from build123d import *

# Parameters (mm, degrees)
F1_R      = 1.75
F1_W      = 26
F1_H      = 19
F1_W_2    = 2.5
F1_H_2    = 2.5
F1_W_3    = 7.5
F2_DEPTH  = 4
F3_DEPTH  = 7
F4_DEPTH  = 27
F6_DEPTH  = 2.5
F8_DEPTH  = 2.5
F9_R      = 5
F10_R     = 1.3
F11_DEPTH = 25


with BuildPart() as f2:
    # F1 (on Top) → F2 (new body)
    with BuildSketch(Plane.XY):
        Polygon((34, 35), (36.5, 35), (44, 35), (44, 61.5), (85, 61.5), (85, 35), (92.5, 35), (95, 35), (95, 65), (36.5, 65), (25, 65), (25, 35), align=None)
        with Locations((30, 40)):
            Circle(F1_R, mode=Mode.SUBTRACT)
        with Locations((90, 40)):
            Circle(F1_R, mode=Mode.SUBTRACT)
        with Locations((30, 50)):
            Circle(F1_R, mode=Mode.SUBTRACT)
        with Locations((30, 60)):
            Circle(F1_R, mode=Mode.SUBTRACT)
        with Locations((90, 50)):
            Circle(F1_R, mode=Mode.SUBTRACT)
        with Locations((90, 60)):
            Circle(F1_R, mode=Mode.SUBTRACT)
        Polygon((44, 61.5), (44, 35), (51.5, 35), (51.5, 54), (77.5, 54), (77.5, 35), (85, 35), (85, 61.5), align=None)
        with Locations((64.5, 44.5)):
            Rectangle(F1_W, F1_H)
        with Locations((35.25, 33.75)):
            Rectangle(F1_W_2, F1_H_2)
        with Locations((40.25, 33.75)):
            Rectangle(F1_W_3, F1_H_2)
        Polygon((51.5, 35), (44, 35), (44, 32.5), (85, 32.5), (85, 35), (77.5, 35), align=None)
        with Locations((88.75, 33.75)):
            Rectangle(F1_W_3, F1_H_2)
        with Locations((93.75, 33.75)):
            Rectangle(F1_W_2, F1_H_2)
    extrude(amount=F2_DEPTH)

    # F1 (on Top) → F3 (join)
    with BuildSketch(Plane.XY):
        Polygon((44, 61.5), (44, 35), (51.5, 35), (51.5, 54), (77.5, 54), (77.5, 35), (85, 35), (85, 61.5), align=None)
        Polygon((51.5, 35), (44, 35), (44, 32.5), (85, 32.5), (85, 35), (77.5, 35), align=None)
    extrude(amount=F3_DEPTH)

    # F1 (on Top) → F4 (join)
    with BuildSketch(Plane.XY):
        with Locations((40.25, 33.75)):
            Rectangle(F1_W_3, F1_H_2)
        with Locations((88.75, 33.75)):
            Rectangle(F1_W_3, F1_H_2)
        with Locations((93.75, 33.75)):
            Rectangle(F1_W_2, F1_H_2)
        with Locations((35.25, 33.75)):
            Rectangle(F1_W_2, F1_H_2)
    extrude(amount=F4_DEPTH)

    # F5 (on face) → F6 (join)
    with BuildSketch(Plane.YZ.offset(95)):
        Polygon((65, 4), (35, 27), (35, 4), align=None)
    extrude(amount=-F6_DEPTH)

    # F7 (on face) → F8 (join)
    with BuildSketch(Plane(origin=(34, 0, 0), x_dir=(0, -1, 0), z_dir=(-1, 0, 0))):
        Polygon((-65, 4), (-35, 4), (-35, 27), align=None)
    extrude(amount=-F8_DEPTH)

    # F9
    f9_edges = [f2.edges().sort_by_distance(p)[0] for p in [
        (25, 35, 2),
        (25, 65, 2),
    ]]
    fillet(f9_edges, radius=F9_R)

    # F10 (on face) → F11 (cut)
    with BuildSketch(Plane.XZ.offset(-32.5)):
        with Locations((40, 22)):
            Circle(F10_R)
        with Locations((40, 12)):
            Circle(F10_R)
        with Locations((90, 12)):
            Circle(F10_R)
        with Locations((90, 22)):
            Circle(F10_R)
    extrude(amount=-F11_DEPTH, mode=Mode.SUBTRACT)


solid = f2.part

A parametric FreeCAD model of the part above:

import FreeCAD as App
import Part
import Sketcher

V = App.Vector
Q = App.Units.Quantity


def edges_at(feature, points):
    """Names of the edges that pass closest to the given points."""
    edges = feature.Shape.Edges
    near = lambda p: min(range(len(edges)), key=lambda i: edges[i].distToShape(Part.Vertex(*p))[0])
    return sorted({f"Edge{near(p) + 1}" for p in points})

doc = App.newDocument("Part")
params = doc.addObject("Spreadsheet::Sheet", "Params")
for row, (alias, value) in enumerate([
    ("sketch1_diameter", "3.5 mm"),
    ("sketch1_width", "9 mm"),
    ("sketch1_width2", "61 mm"),
    ("sketch1_height", "30 mm"),
    ("sketch1_height2", "2.5 mm"),
    ("pad1_length", "4 mm"),
    ("sketch2_width", "41 mm"),
    ("sketch2_width2", "26 mm"),
    ("sketch2_height", "29 mm"),
    ("sketch2_height2", "19 mm"),
    ("pad2_length", "7 mm"),
    ("sketch3_width", "10 mm"),
    ("sketch3_height", "2.5 mm"),
    ("pad3_length", "27 mm"),
    ("sketch4_width", "30 mm"),
    ("sketch4_height", "23 mm"),
    ("pad4_length", "2.5 mm"),
    ("sketch5_width", "30 mm"),
    ("sketch5_height", "23 mm"),
    ("pad5_length", "2.5 mm"),
    ("fillet_radius", "5 mm"),
    ("sketch6_diameter", "2.6 mm"),
    ("pocket1_length", "25 mm"),
], start=1):
    params.set(f"A{row}", alias)
    params.set(f"B{row}", "=" + value)
    params.setAlias(f"B{row}", alias)

body = doc.addObject("PartDesign::Body", "Body")

sketch1 = doc.addObject("Sketcher::SketchObject", "Sketch")
body.addObject(sketch1)
sketch1.AttachmentSupport = (doc.XY_Plane, [""])
sketch1.MapMode = "FlatFace"
sketch1.addGeometry([
    Part.LineSegment(V(25, 35, 0), V(34, 35, 0)),
    Part.LineSegment(V(34, 35, 0), V(34, 32.5, 0)),
    Part.LineSegment(V(34, 32.5, 0), V(95, 32.5, 0)),
    Part.LineSegment(V(95, 32.5, 0), V(95, 65, 0)),
    Part.LineSegment(V(95, 65, 0), V(25, 65, 0)),
    Part.LineSegment(V(25, 65, 0), V(25, 35, 0)),
    Part.Circle(V(30, 40, 0), V(0, 0, 1), 1.8),
    Part.Circle(V(90, 40, 0), V(0, 0, 1), 1.8),
    Part.Circle(V(30, 50, 0), V(0, 0, 1), 1.8),
    Part.Circle(V(30, 60, 0), V(0, 0, 1), 1.8),
    Part.Circle(V(90, 50, 0), V(0, 0, 1), 1.8),
    Part.Circle(V(90, 60, 0), V(0, 0, 1), 1.8),
], False)
sketch1.addConstraint([
    Sketcher.Constraint("Coincident", 0, 2, 1, 1),
    Sketcher.Constraint("Coincident", 1, 2, 2, 1),
    Sketcher.Constraint("Coincident", 2, 2, 3, 1),
    Sketcher.Constraint("Coincident", 3, 2, 4, 1),
    Sketcher.Constraint("Coincident", 4, 2, 5, 1),
    Sketcher.Constraint("Coincident", 5, 2, 0, 1),
    Sketcher.Constraint("Horizontal", 0),
    Sketcher.Constraint("Vertical", 1),
    Sketcher.Constraint("Horizontal", 2),
    Sketcher.Constraint("Vertical", 3),
    Sketcher.Constraint("Horizontal", 4),
    Sketcher.Constraint("Vertical", 5),
    Sketcher.Constraint("Equal", 6, 7),
    Sketcher.Constraint("Equal", 7, 8),
    Sketcher.Constraint("Equal", 8, 9),
    Sketcher.Constraint("Equal", 9, 10),
    Sketcher.Constraint("Equal", 10, 11),
    Sketcher.Constraint("Horizontal", 6, 3, 7, 3),
    Sketcher.Constraint("Horizontal", 8, 3, 10, 3),
    Sketcher.Constraint("Horizontal", 9, 3, 11, 3),
    Sketcher.Constraint("Vertical", 6, 3, 8, 3),
    Sketcher.Constraint("Vertical", 8, 3, 9, 3),
    Sketcher.Constraint("Vertical", 7, 3, 10, 3),
    Sketcher.Constraint("Vertical", 10, 3, 11, 3),
    Sketcher.Constraint("Diameter", 6, Q("3.5 mm")),
    Sketcher.Constraint("DistanceX", 0, 1, 0, 2, Q("9 mm")),
    Sketcher.Constraint("DistanceX", 2, 1, 2, 2, Q("61 mm")),
    Sketcher.Constraint("DistanceY", 5, 2, 5, 1, Q("30 mm")),
    Sketcher.Constraint("DistanceY", 1, 2, 1, 1, Q("2.5 mm")),
    Sketcher.Constraint("DistanceX", -1, 1, 6, 3, Q("30 mm")),
    Sketcher.Constraint("DistanceY", -1, 1, 6, 3, Q("40 mm")),
    Sketcher.Constraint("DistanceX", -1, 1, 7, 3, Q("90 mm")),
    Sketcher.Constraint("DistanceY", -1, 1, 8, 3, Q("50 mm")),
    Sketcher.Constraint("DistanceY", -1, 1, 9, 3, Q("60 mm")),
    Sketcher.Constraint("DistanceX", -1, 1, 0, 2, Q("34 mm")),
    Sketcher.Constraint("DistanceY", -1, 1, 0, 2, Q("35 mm")),
])
sketch1.setExpression("Constraints[24]", "Params.sketch1_diameter")
sketch1.setExpression("Constraints[25]", "Params.sketch1_width")
sketch1.setExpression("Constraints[26]", "Params.sketch1_width2")
sketch1.setExpression("Constraints[27]", "Params.sketch1_height")
sketch1.setExpression("Constraints[28]", "Params.sketch1_height2")
pad1 = doc.addObject("PartDesign::Pad", "Pad")
body.addObject(pad1)
pad1.Profile = sketch1
pad1.setExpression("Length", "Params.pad1_length")

sketch2 = doc.addObject("Sketcher::SketchObject", "Sketch001")
body.addObject(sketch2)
sketch2.AttachmentSupport = (doc.XY_Plane, [""])
sketch2.MapMode = "FlatFace"
sketch2.addGeometry([
    Part.LineSegment(V(44, 62, 0), V(44, 32, 0)),
    Part.LineSegment(V(44, 32, 0), V(85, 32, 0)),
    Part.LineSegment(V(85, 32, 0), V(85, 62, 0)),
    Part.LineSegment(V(85, 62, 0), V(44, 62, 0)),
    Part.LineSegment(V(52, 35, 0), V(52, 54, 0)),
    Part.LineSegment(V(52, 54, 0), V(78, 54, 0)),
    Part.LineSegment(V(78, 54, 0), V(78, 35, 0)),
    Part.LineSegment(V(78, 35, 0), V(52, 35, 0)),
], False)
sketch2.addConstraint([
    Sketcher.Constraint("Coincident", 0, 2, 1, 1),
    Sketcher.Constraint("Coincident", 1, 2, 2, 1),
    Sketcher.Constraint("Coincident", 2, 2, 3, 1),
    Sketcher.Constraint("Coincident", 3, 2, 0, 1),
    Sketcher.Constraint("Coincident", 4, 2, 5, 1),
    Sketcher.Constraint("Coincident", 5, 2, 6, 1),
    Sketcher.Constraint("Coincident", 6, 2, 7, 1),
    Sketcher.Constraint("Coincident", 7, 2, 4, 1),
    Sketcher.Constraint("Vertical", 0),
    Sketcher.Constraint("Horizontal", 1),
    Sketcher.Constraint("Vertical", 2),
    Sketcher.Constraint("Horizontal", 3),
    Sketcher.Constraint("Vertical", 4),
    Sketcher.Constraint("Horizontal", 5),
    Sketcher.Constraint("Vertical", 6),
    Sketcher.Constraint("Horizontal", 7),
    Sketcher.Constraint("DistanceX", 1, 1, 1, 2, Q("41 mm")),
    Sketcher.Constraint("DistanceX", 5, 1, 5, 2, Q("26 mm")),
    Sketcher.Constraint("DistanceY", 0, 2, 0, 1, Q("29 mm")),
    Sketcher.Constraint("DistanceY", 4, 1, 4, 2, Q("19 mm")),
    Sketcher.Constraint("DistanceX", -1, 1, 0, 2, Q("44 mm")),
    Sketcher.Constraint("DistanceY", -1, 1, 4, 2, Q("54 mm")),
    Sketcher.Constraint("DistanceY", -1, 1, 0, 2, Q("32.5 mm")),
    Sketcher.Constraint("DistanceX", -1, 1, 4, 2, Q("51.5 mm")),
])
sketch2.setExpression("Constraints[16]", "Params.sketch2_width")
sketch2.setExpression("Constraints[17]", "Params.sketch2_width2")
sketch2.setExpression("Constraints[18]", "Params.sketch2_height")
sketch2.setExpression("Constraints[19]", "Params.sketch2_height2")
pad2 = doc.addObject("PartDesign::Pad", "Pad001")
body.addObject(pad2)
pad2.Profile = sketch2
pad2.setExpression("Length", "Params.pad2_length")

sketch3 = doc.addObject("Sketcher::SketchObject", "Sketch002")
body.addObject(sketch3)
sketch3.AttachmentSupport = (doc.XY_Plane, [""])
sketch3.MapMode = "FlatFace"
sketch3.addGeometry([
    Part.LineSegment(V(44, 32.5, 0), V(44, 35, 0)),
    Part.LineSegment(V(44, 35, 0), V(34, 35, 0)),
    Part.LineSegment(V(34, 35, 0), V(34, 32.5, 0)),
    Part.LineSegment(V(34, 32.5, 0), V(44, 32.5, 0)),
    Part.LineSegment(V(85, 35, 0), V(85, 32.5, 0)),
    Part.LineSegment(V(85, 32.5, 0), V(95, 32.5, 0)),
    Part.LineSegment(V(95, 32.5, 0), V(95, 35, 0)),
    Part.LineSegment(V(95, 35, 0), V(85, 35, 0)),
], False)
sketch3.addConstraint([
    Sketcher.Constraint("Coincident", 0, 2, 1, 1),
    Sketcher.Constraint("Coincident", 1, 2, 2, 1),
    Sketcher.Constraint("Coincident", 2, 2, 3, 1),
    Sketcher.Constraint("Coincident", 3, 2, 0, 1),
    Sketcher.Constraint("Coincident", 4, 2, 5, 1),
    Sketcher.Constraint("Coincident", 5, 2, 6, 1),
    Sketcher.Constraint("Coincident", 6, 2, 7, 1),
    Sketcher.Constraint("Coincident", 7, 2, 4, 1),
    Sketcher.Constraint("Vertical", 0),
    Sketcher.Constraint("Horizontal", 1),
    Sketcher.Constraint("Vertical", 2),
    Sketcher.Constraint("Horizontal", 3),
    Sketcher.Constraint("Vertical", 4),
    Sketcher.Constraint("Horizontal", 5),
    Sketcher.Constraint("Vertical", 6),
    Sketcher.Constraint("Horizontal", 7),
    Sketcher.Constraint("Horizontal", 3, 2, 4, 2),
    Sketcher.Constraint("Horizontal", 1, 2, 6, 2),
    Sketcher.Constraint("Equal", 3, 5),
    Sketcher.Constraint("DistanceX", 1, 2, 1, 1, Q("10 mm")),
    Sketcher.Constraint("DistanceY", 0, 1, 0, 2, Q("2.5 mm")),
    Sketcher.Constraint("DistanceX", -1, 1, 0, 2, Q("44 mm")),
    Sketcher.Constraint("DistanceY", -1, 1, 0, 2, Q("35 mm")),
    Sketcher.Constraint("DistanceX", -1, 1, 4, 2, Q("85 mm")),
])
sketch3.setExpression("Constraints[19]", "Params.sketch3_width")
sketch3.setExpression("Constraints[20]", "Params.sketch3_height")
pad3 = doc.addObject("PartDesign::Pad", "Pad002")
body.addObject(pad3)
pad3.Profile = sketch3
pad3.setExpression("Length", "Params.pad3_length")

sketch4 = doc.addObject("Sketcher::SketchObject", "Sketch003")
body.addObject(sketch4)
sketch4.AttachmentSupport = (doc.YZ_Plane, [""])
sketch4.MapMode = "FlatFace"
sketch4.AttachmentOffset = App.Placement(V(0, 0, 95), App.Rotation())
sketch4.addGeometry([
    Part.LineSegment(V(65, 4, 0), V(35, 27, 0)),
    Part.LineSegment(V(35, 27, 0), V(35, 4, 0)),
    Part.LineSegment(V(35, 4, 0), V(65, 4, 0)),
], False)
sketch4.addConstraint([
    Sketcher.Constraint("Coincident", 0, 2, 1, 1),
    Sketcher.Constraint("Coincident", 1, 2, 2, 1),
    Sketcher.Constraint("Coincident", 2, 2, 0, 1),
    Sketcher.Constraint("Vertical", 1),
    Sketcher.Constraint("Horizontal", 2),
    Sketcher.Constraint("DistanceX", 2, 1, 2, 2, Q("30 mm")),
    Sketcher.Constraint("DistanceY", 1, 2, 1, 1, Q("23 mm")),
    Sketcher.Constraint("DistanceX", -1, 1, 0, 2, Q("35 mm")),
    Sketcher.Constraint("DistanceY", -1, 1, 0, 2, Q("27 mm")),
])
sketch4.setExpression("Constraints[5]", "Params.sketch4_width")
sketch4.setExpression("Constraints[6]", "Params.sketch4_height")
pad4 = doc.addObject("PartDesign::Pad", "Pad003")
body.addObject(pad4)
pad4.Profile = sketch4
pad4.setExpression("Length", "Params.pad4_length")
pad4.Reversed = True

sketch5 = doc.addObject("Sketcher::SketchObject", "Sketch004")
body.addObject(sketch5)
sketch5.AttachmentSupport = (doc.YZ_Plane, [""])
sketch5.MapMode = "FlatFace"
sketch5.AttachmentOffset = App.Placement(V(0, 0, 34), App.Rotation())
sketch5.addGeometry([
    Part.LineSegment(V(65, 4, 0), V(35, 4, 0)),
    Part.LineSegment(V(35, 4, 0), V(35, 27, 0)),
    Part.LineSegment(V(35, 27, 0), V(65, 4, 0)),
], False)
sketch5.addConstraint([
    Sketcher.Constraint("Coincident", 0, 2, 1, 1),
    Sketcher.Constraint("Coincident", 1, 2, 2, 1),
    Sketcher.Constraint("Coincident", 2, 2, 0, 1),
    Sketcher.Constraint("Horizontal", 0),
    Sketcher.Constraint("Vertical", 1),
    Sketcher.Constraint("DistanceX", 0, 2, 0, 1, Q("30 mm")),
    Sketcher.Constraint("DistanceY", 1, 1, 1, 2, Q("23 mm")),
    Sketcher.Constraint("DistanceX", -1, 1, 0, 2, Q("35 mm")),
    Sketcher.Constraint("DistanceY", -1, 1, 0, 2, Q("4 mm")),
])
sketch5.setExpression("Constraints[5]", "Params.sketch5_width")
sketch5.setExpression("Constraints[6]", "Params.sketch5_height")
pad5 = doc.addObject("PartDesign::Pad", "Pad004")
body.addObject(pad5)
pad5.Profile = sketch5
pad5.setExpression("Length", "Params.pad5_length")
doc.recompute()

fillet = doc.addObject("PartDesign::Fillet", "Fillet")
body.addObject(fillet)
fillet.Base = (pad5, edges_at(pad5, [(25, 35, 2), (25, 65, 2)]))
fillet.setExpression("Radius", "Params.fillet_radius")

sketch6 = doc.addObject("Sketcher::SketchObject", "Sketch005")
body.addObject(sketch6)
sketch6.AttachmentSupport = (doc.XZ_Plane, [""])
sketch6.MapMode = "FlatFace"
sketch6.AttachmentOffset = App.Placement(V(0, 0, -32.5), App.Rotation())
sketch6.addGeometry([
    Part.Circle(V(40, 22, 0), V(0, 0, 1), 1.3),
    Part.Circle(V(40, 12, 0), V(0, 0, 1), 1.3),
    Part.Circle(V(90, 12, 0), V(0, 0, 1), 1.3),
    Part.Circle(V(90, 22, 0), V(0, 0, 1), 1.3),
], False)
sketch6.addConstraint([
    Sketcher.Constraint("Equal", 0, 1),
    Sketcher.Constraint("Equal", 1, 2),
    Sketcher.Constraint("Equal", 2, 3),
    Sketcher.Constraint("Horizontal", 1, 3, 2, 3),
    Sketcher.Constraint("Horizontal", 0, 3, 3, 3),
    Sketcher.Constraint("Vertical", 0, 3, 1, 3),
    Sketcher.Constraint("Vertical", 2, 3, 3, 3),
    Sketcher.Constraint("Diameter", 0, Q("2.6 mm")),
    Sketcher.Constraint("DistanceX", -1, 1, 0, 3, Q("40 mm")),
    Sketcher.Constraint("DistanceY", -1, 1, 0, 3, Q("22 mm")),
    Sketcher.Constraint("DistanceY", -1, 1, 1, 3, Q("12 mm")),
    Sketcher.Constraint("DistanceX", -1, 1, 2, 3, Q("90 mm")),
])
sketch6.setExpression("Constraints[7]", "Params.sketch6_diameter")
pocket1 = doc.addObject("PartDesign::Pocket", "Pocket")
body.addObject(pocket1)
pocket1.Profile = sketch6
pocket1.setExpression("Length", "Params.pocket1_length")

doc.recompute()
